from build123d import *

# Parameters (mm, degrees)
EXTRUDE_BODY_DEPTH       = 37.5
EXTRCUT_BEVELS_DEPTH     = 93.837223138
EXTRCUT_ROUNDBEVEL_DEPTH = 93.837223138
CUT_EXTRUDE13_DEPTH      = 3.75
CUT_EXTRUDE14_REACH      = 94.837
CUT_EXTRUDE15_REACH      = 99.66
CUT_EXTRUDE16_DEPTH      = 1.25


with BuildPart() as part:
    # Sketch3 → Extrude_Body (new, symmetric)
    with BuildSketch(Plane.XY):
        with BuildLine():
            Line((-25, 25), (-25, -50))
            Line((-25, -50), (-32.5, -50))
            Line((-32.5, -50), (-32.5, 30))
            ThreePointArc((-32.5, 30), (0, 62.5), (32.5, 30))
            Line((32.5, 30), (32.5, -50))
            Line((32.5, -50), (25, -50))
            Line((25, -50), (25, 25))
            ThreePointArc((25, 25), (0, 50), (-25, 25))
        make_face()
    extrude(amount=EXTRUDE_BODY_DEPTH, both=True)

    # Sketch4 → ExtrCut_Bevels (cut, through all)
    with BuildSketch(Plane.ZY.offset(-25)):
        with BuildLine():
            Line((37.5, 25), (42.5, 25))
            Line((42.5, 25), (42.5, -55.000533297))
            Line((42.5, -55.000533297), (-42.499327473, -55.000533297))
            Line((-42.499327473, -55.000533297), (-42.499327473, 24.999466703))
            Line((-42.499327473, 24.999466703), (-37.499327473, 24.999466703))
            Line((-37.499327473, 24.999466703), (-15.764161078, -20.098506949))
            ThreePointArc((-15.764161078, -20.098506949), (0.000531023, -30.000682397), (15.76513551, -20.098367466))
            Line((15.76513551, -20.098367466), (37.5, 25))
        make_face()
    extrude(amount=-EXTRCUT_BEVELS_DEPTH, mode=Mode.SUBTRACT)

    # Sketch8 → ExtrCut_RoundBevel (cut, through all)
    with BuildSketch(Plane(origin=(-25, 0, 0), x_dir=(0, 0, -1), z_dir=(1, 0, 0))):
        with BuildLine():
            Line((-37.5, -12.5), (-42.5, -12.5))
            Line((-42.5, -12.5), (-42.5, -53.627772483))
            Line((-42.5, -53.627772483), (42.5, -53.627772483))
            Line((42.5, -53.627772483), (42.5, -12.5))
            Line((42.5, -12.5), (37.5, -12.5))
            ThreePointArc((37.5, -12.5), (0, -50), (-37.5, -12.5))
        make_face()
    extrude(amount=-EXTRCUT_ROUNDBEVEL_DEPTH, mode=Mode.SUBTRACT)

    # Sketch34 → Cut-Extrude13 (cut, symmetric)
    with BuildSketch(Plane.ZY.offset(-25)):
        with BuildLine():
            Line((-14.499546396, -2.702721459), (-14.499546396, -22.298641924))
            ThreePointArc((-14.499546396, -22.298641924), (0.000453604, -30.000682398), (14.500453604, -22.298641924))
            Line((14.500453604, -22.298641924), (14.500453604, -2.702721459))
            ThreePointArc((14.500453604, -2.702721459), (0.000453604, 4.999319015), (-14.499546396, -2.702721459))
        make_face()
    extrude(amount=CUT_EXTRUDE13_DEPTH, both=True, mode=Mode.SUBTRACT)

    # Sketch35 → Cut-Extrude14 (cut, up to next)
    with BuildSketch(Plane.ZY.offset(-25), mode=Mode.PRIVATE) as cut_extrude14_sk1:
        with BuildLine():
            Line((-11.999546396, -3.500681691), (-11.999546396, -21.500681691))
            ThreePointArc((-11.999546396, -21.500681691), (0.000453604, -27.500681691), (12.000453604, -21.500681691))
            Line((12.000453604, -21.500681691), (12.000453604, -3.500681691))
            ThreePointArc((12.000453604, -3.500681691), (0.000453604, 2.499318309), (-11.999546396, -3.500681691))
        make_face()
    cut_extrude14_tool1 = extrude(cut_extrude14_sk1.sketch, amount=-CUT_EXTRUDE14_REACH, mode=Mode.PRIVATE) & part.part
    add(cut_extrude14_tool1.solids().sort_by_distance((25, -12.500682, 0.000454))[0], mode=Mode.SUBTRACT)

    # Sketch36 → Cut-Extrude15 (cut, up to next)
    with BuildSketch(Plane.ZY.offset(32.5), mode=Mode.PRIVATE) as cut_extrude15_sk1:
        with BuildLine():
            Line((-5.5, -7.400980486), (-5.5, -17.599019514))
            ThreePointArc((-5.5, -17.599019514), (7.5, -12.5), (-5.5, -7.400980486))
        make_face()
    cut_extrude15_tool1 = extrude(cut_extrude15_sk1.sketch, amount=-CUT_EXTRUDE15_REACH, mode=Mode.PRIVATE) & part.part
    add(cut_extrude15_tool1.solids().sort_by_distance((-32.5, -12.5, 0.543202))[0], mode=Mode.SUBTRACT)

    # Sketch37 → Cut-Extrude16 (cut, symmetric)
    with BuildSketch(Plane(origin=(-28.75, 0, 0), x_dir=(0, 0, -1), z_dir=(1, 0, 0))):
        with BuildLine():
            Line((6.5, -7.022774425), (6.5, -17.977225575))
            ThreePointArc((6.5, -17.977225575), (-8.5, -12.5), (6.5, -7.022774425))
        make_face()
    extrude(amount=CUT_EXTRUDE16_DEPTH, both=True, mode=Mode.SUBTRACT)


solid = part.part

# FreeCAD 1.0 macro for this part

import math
import FreeCAD as App
import Part
import Sketcher
from FreeCAD import Vector

doc = App.newDocument("Part")
params = doc.addObject("Spreadsheet::Sheet", "Params")
for row, (alias, value) in enumerate([
    ("sketch1_radius", "25 mm"),
    ("sketch1_radius2", "32.5 mm"),
    ("sketch1_height", "75 mm"),
    ("sketch1_height2", "80 mm"),
    ("pad1_length", "75 mm"),
    ("sketch2_radius", "17.500001 mm"),
    ("sketch2_width", "80 mm"),
    ("sketch2_height", "5 mm"),
    ("sketch3_radius", "37.5 mm"),
    ("sketch3_height", "5 mm"),
    ("sketch4_radius", "17.500001 mm"),
    ("pocket3_length", "7.5 mm"),
    ("sketch5_radius", "15 mm"),
    ("sketch5_width", "18 mm"),
    ("pocket4_length", "7.5 mm"),
    ("sketch6_radius", "7.5 mm"),
    ("sketch7_radius", "8.5 mm"),
    ("pocket6_length", "2.5 mm"),
], start=1):
    params.set(f"A{row}", alias)
    params.set(f"B{row}", "=" + value)
    params.setAlias(f"B{row}", alias)

body = doc.addObject("PartDesign::Body", "Body")

sketch1 = body.newObject("Sketcher::SketchObject", "Sketch")
sketch1.AttachmentSupport = (doc.getObject("XY_Plane"), [""])
sketch1.MapMode = "FlatFace"
sketch1.addGeometry([
    Part.LineSegment(Vector(-25, -50, 0), Vector(-25, 25, 0)),
    Part.ArcOfCircle(Part.Circle(Vector(0, 25, 0), Vector(0, 0, 1), 25), math.radians(0), math.radians(180)),
    Part.LineSegment(Vector(25, 25, 0), Vector(25, -50, 0)),
    Part.LineSegment(Vector(25, -50, 0), Vector(32, -50, 0)),
    Part.LineSegment(Vector(32, -50, 0), Vector(32, 30, 0)),
    Part.ArcOfCircle(Part.Circle(Vector(0, 30, 0), Vector(0, 0, 1), 32), math.radians(0), math.radians(180)),
    Part.LineSegment(Vector(-32, 30, 0), Vector(-32, -50, 0)),
    Part.LineSegment(Vector(-32, -50, 0), Vector(-25, -50, 0)),
], False)
sketch1.addConstraint([
    Sketcher.Constraint("Tangent", 0, 2, 1, 2),
    Sketcher.Constraint("Tangent", 1, 1, 2, 1),
    Sketcher.Constraint("Coincident", 2, 2, 3, 1),
    Sketcher.Constraint("Coincident", 3, 2, 4, 1),
    Sketcher.Constraint("Tangent", 4, 2, 5, 1),
    Sketcher.Constraint("Tangent", 5, 2, 6, 1),
    Sketcher.Constraint("Coincident", 6, 2, 7, 1),
    Sketcher.Constraint("Coincident", 7, 2, 0, 1),
    Sketcher.Constraint("Vertical", 0),
    Sketcher.Constraint("Vertical", 2),
    Sketcher.Constraint("Horizontal", 3),
    Sketcher.Constraint("Vertical", 4),
    Sketcher.Constraint("Vertical", 6),
    Sketcher.Constraint("Horizontal", 7),
    Sketcher.Constraint("Symmetric", 3, 2, 6, 2, -2),
    Sketcher.Constraint("PointOnObject", 1, 3, -2),
    Sketcher.Constraint("Radius", 1, 25.0),
    Sketcher.Constraint("Radius", 5, 32.5),
    Sketcher.Constraint("DistanceY", 0, 1, 0, 2, 75.0),
    Sketcher.Constraint("DistanceY", 4, 1, 4, 2, 80.0),
    Sketcher.Constraint("DistanceY", -1, 1, 1, 3, 25.0),
])
sketch1.setExpression("Constraints[16]", "Params.sketch1_radius")
sketch1.setExpression("Constraints[17]", "Params.sketch1_radius2")
sketch1.setExpression("Constraints[18]", "Params.sketch1_height")
sketch1.setExpression("Constraints[19]", "Params.sketch1_height2")
pad1 = body.newObject("PartDesign::Pad", "Pad")
pad1.Profile = sketch1
pad1.setExpression("Length", "Params.pad1_length")
pad1.Midplane = True

sketch2 = body.newObject("Sketcher::SketchObject", "Sketch001")
sketch2.AttachmentSupport = (doc.getObject("YZ_Plane"), [""])
sketch2.MapMode = "FlatFace"
sketch2.AttachmentOffset = App.Placement(Vector(0, 0, 25), App.Rotation())
sketch2.addGeometry([
    Part.LineSegment(Vector(25, 42, 0), Vector(25, 38, 0)),
    Part.LineSegment(Vector(25, 38, 0), Vector(-20, 16, 0)),
    Part.ArcOfCircle(Part.Circle(Vector(-13, 0, 0), Vector(0, 0, 1), 18), math.radians(116), math.radians(244)),
    Part.LineSegment(Vector(-20, -16, 0), Vector(25, -37, 0)),
    Part.LineSegment(Vector(25, -37, 0), Vector(25, -42, 0)),
    Part.LineSegment(Vector(25, -42, 0), Vector(-55, -42, 0)),
    Part.LineSegment(Vector(-55, -42, 0), Vector(-55, 42, 0)),
    Part.LineSegment(Vector(-55, 42, 0), Vector(25, 42, 0)),
], False)
sketch2.addConstraint([
    Sketcher.Constraint("Coincident", 0, 2, 1, 1),
    Sketcher.Constraint("Tangent", 1, 2, 2, 1),
    Sketcher.Constraint("Tangent", 2, 2, 3, 1),
    Sketcher.Constraint("Coincident", 3, 2, 4, 1),
    Sketcher.Constraint("Coincident", 4, 2, 5, 1),
    Sketcher.Constraint("Coincident", 5, 2, 6, 1),
    Sketcher.Constraint("Coincident", 6, 2, 7, 1),
    Sketcher.Constraint("Coincident", 7, 2, 0, 1),
    Sketcher.Constraint("Vertical", 0),
    Sketcher.Constraint("Vertical", 4),
    Sketcher.Constraint("Horizontal", 5),
    Sketcher.Constraint("Vertical", 6),
    Sketcher.Constraint("Horizontal", 7),
    Sketcher.Constraint("Equal", 0, 4),
    Sketcher.Constraint("Radius", 2, 17.500001),
    Sketcher.Constraint("DistanceX", 5, 2, 5, 1, 80.0),
    Sketcher.Constraint("DistanceY", 0, 2, 0, 1, 5.0),
    Sketcher.Constraint("DistanceX", -1, 1, 0, 2, 25.0),
    Sketcher.Constraint("DistanceY", -1, 1, 0, 2, 37.5),
    Sketcher.Constraint("Distance", 1, 50.062632),
    Sketcher.Constraint("DistanceX", 7, 1, 7, 2, 80.000533),
    Sketcher.Constraint("DistanceY", 6, 1, 6, 2, 84.999327),
    Sketcher.Constraint("DistanceX", 2, 3, -1, 1, 12.500682),
])
sketch2.setExpression("Constraints[14]", "Params.sketch2_radius")
sketch2.setExpression("Constraints[15]", "Params.sketch2_width")
sketch2.setExpression("Constraints[16]", "Params.sketch2_height")
pocket1 = body.newObject("PartDesign::Pocket", "Pocket")
pocket1.Profile = sketch2
pocket1.Type = "ThroughAll"
pocket1.Reversed = True

sketch3 = body.newObject("Sketcher::SketchObject", "Sketch002")
sketch3.AttachmentSupport = (doc.getObject("YZ_Plane"), [""])
sketch3.MapMode = "FlatFace"
sketch3.AttachmentOffset = App.Placement(Vector(0, 0, -25), App.Rotation())
sketch3.addGeometry([
    Part.LineSegment(Vector(-12, 38, 0), Vector(-12, 42, 0)),
    Part.LineSegment(Vector(-12, 42, 0), Vector(-54, 42, 0)),
    Part.LineSegment(Vector(-54, 42, 0), Vector(-54, -42, 0)),
    Part.LineSegment(Vector(-54, -42, 0), Vector(-12, -42, 0)),
    Part.LineSegment(Vector(-12, -42, 0), Vector(-12, -38, 0)),
    Part.ArcOfCircle(Part.Circle(Vector(-12, 0, 0), Vector(0, 0, 1), 38), math.radians(90), math.radians(270)),
], False)
sketch3.addConstraint([
    Sketcher.Constraint("Coincident", 0, 2, 1, 1),
    Sketcher.Constraint("Coincident", 1, 2, 2, 1),
    Sketcher.Constraint("Coincident", 2, 2, 3, 1),
    Sketcher.Constraint("Coincident", 3, 2, 4, 1),
    Sketcher.Constraint("Coincident", 4, 2, 5, 2),
    Sketcher.Constraint("Coincident", 5, 1, 0, 1),
    Sketcher.Constraint("Vertical", 0),
    Sketcher.Constraint("Horizontal", 1),
    Sketcher.Constraint("Vertical", 2),
    Sketcher.Constraint("Horizontal", 3),
    Sketcher.Constraint("Vertical", 4),
    Sketcher.Constraint("Symmetric", 0, 2, 3, 2, -1),
    Sketcher.Constraint("PointOnObject", 5, 3, -1),
    Sketcher.Constraint("Vertical", 5, 3, 0, 2),
    Sketcher.Constraint("Radius", 5, 37.5),
    Sketcher.Constraint("DistanceY", 0, 1, 0, 2, 5.0),
    Sketcher.Constraint("DistanceX", 5, 3, -1, 1, 12.5),
    Sketcher.Constraint("DistanceX", 1, 2, 1, 1, 41.127772),
])
sketch3.setExpression("Constraints[14]", "Params.sketch3_radius")
sketch3.setExpression("Constraints[15]", "Params.sketch3_height")
pocket2 = body.newObject("PartDesign::Pocket", "Pocket001")
pocket2.Profile = sketch3
pocket2.Type = "ThroughAll"

sketch4 = body.newObject("Sketcher::SketchObject", "Sketch003")
sketch4.AttachmentSupport = (doc.getObject("YZ_Plane"), [""])
sketch4.MapMode = "FlatFace"
sketch4.AttachmentOffset = App.Placement(Vector(0, 0, 25), App.Rotation())
sketch4.addGeometry([
    Part.LineSegment(Vector(-3, -14, 0), Vector(-22, -14, 0)),
    Part.ArcOfCircle(Part.Circle(Vector(-13, 0, 0), Vector(0, 0, 1), 18), math.radians(124), math.radians(236)),
    Part.LineSegment(Vector(-22, 15, 0), Vector(-3, 15, 0)),
    Part.ArcOfCircle(Part.Circle(Vector(-13, 0, 0), Vector(0, 0, 1), 18), math.radians(-56), math.radians(56)),
], False)
sketch4.addConstraint([
    Sketcher.Constraint("Coincident", 0, 2, 1, 2),
    Sketcher.Constraint("Coincident", 1, 1, 2, 1),
    Sketcher.Constraint("Coincident", 2, 2, 3, 2),
    Sketcher.Constraint("Coincident", 3, 1, 0, 1),
    Sketcher.Constraint("Horizontal", 0),
    Sketcher.Constraint("Horizontal", 2),
    Sketcher.Constraint("Coincident", 3, 3, 1, 3),
    Sketcher.Constraint("Equal", 1, 3),
    Sketcher.Constraint("Vertical", 0, 2, 1, 1),
    Sketcher.Constraint("Radius", 1, 17.500001),
    Sketcher.Constraint("DistanceY", 0, 2, 1, 1, 29.0),
    Sketcher.Constraint("DistanceX", 1, 3, -1, 1, 12.500682),
    Sketcher.Constraint("DistanceY", -1, 1, 1, 3, 0.000454),
])
sketch4.setExpression("Constraints[9]", "Params.sketch4_radius")
pocket3 = body.newObject("PartDesign::Pocket", "Pocket002")
pocket3.Profile = sketch4
pocket3.setExpression("Length", "Params.pocket3_length")
pocket3.Midplane = True

sketch5 = body.newObject("Sketcher::SketchObject", "Sketch004")
sketch5.AttachmentSupport = (doc.getObject("YZ_Plane"), [""])
sketch5.MapMode = "FlatFace"
sketch5.AttachmentOffset = App.Placement(Vector(0, 0, 25), App.Rotation())
sketch5.addGeometry([
    Part.LineSegment(Vector(-4, -12, 0), Vector(-22, -12, 0)),
    Part.ArcOfCircle(Part.Circle(Vector(-13, 0, 0), Vector(0, 0, 1), 15), math.radians(127), math.radians(233)),
    Part.LineSegment(Vector(-22, 12, 0), Vector(-4, 12, 0)),
    Part.ArcOfCircle(Part.Circle(Vector(-13, 0, 0), Vector(0, 0, 1), 15), math.radians(-53), math.radians(53)),
], False)
sketch5.addConstraint([
    Sketcher.Constraint("Coincident", 0, 2, 1, 2),
    Sketcher.Constraint("Coincident", 1, 1, 2, 1),
    Sketcher.Constraint("Coincident", 2, 2, 3, 2),
    Sketcher.Constraint("Coincident", 3, 1, 0, 1),
    Sketcher.Constraint("Horizontal", 0),
    Sketcher.Constraint("Horizontal", 2),
    Sketcher.Constraint("Coincident", 3, 3, 1, 3),
    Sketcher.Constraint("Equal", 1, 3),
    Sketcher.Constraint("Vertical", 0, 2, 1, 1),
    Sketcher.Constraint("Radius", 1, 15.0),
    Sketcher.Constraint("DistanceX", 0, 2, 0, 1, 18.0),
    Sketcher.Constraint("DistanceX", 1, 3, -1, 1, 12.500682),
    Sketcher.Constraint("DistanceY", -1, 1, 1, 3, 0.000454),
])
sketch5.setExpression("Constraints[9]", "Params.sketch5_radius")
sketch5.setExpression("Constraints[10]", "Params.sketch5_width")
pocket4 = body.newObject("PartDesign::Pocket", "Pocket003")
pocket4.Profile = sketch5
pocket4.setExpression("Length", "Params.pocket4_length")
pocket4.Reversed = True

sketch6 = body.newObject("Sketcher::SketchObject", "Sketch005")
sketch6.AttachmentSupport = (doc.getObject("YZ_Plane"), [""])
sketch6.MapMode = "FlatFace"
sketch6.AttachmentOffset = App.Placement(Vector(0, 0, -32.5), App.Rotation())
sketch6.addGeometry([
    Part.LineSegment(Vector(-7, -6, 0), Vector(-18, -6, 0)),
    Part.ArcOfCircle(Part.Circle(Vector(-12, 0, 0), Vector(0, 0, 1), 8), math.radians(-47), math.radians(227)),
], False)
sketch6.addConstraint([
    Sketcher.Constraint("Coincident", 0, 1, 1, 1),
    Sketcher.Constraint("Coincident", 1, 2, 0, 2),
    Sketcher.Constraint("Horizontal", 0),
    Sketcher.Constraint("PointOnObject", 1, 3, -1),
    Sketcher.Constraint("Radius", 1, 7.5),
    Sketcher.Constraint("DistanceX", 1, 3, -1, 1, 12.5),
    Sketcher.Constraint("DistanceY", 0, 1, -1, 1, 5.5),
])
sketch6.setExpression("Constraints[4]", "Params.sketch6_radius")
pocket5 = body.newObject("PartDesign::Pocket", "Pocket004")
pocket5.Profile = sketch6
pocket5.Type = "UpToFirst"
pocket5.Reversed = True

sketch7 = body.newObject("Sketcher::SketchObject", "Sketch006")
sketch7.AttachmentSupport = (doc.getObject("YZ_Plane"), [""])
sketch7.MapMode = "FlatFace"
sketch7.AttachmentOffset = App.Placement(Vector(0, 0, -28.75), App.Rotation())
sketch7.addGeometry([
    Part.LineSegment(Vector(-18, -6, 0), Vector(-7, -6, 0)),
    Part.ArcOfCircle(Part.Circle(Vector(-12, 0, 0), Vector(0, 0, 1), 8), math.radians(-50), math.radians(230)),
], False)
sketch7.addConstraint([
    Sketcher.Constraint("Coincident", 0, 1, 1, 2),
    Sketcher.Constraint("Coincident", 1, 1, 0, 2),
    Sketcher.Constraint("Horizontal", 0),
    Sketcher.Constraint("PointOnObject", 1, 3, -1),
    Sketcher.Constraint("Radius", 1, 8.5),
    Sketcher.Constraint("DistanceX", 1, 3, -1, 1, 12.5),
    Sketcher.Constraint("DistanceY", 0, 1, -1, 1, 6.5),
])
sketch7.setExpression("Constraints[4]", "Params.sketch7_radius")
pocket6 = body.newObject("PartDesign::Pocket", "Pocket005")
pocket6.Profile = sketch7
pocket6.setExpression("Length", "Params.pocket6_length")
pocket6.Midplane = True

doc.recompute()
